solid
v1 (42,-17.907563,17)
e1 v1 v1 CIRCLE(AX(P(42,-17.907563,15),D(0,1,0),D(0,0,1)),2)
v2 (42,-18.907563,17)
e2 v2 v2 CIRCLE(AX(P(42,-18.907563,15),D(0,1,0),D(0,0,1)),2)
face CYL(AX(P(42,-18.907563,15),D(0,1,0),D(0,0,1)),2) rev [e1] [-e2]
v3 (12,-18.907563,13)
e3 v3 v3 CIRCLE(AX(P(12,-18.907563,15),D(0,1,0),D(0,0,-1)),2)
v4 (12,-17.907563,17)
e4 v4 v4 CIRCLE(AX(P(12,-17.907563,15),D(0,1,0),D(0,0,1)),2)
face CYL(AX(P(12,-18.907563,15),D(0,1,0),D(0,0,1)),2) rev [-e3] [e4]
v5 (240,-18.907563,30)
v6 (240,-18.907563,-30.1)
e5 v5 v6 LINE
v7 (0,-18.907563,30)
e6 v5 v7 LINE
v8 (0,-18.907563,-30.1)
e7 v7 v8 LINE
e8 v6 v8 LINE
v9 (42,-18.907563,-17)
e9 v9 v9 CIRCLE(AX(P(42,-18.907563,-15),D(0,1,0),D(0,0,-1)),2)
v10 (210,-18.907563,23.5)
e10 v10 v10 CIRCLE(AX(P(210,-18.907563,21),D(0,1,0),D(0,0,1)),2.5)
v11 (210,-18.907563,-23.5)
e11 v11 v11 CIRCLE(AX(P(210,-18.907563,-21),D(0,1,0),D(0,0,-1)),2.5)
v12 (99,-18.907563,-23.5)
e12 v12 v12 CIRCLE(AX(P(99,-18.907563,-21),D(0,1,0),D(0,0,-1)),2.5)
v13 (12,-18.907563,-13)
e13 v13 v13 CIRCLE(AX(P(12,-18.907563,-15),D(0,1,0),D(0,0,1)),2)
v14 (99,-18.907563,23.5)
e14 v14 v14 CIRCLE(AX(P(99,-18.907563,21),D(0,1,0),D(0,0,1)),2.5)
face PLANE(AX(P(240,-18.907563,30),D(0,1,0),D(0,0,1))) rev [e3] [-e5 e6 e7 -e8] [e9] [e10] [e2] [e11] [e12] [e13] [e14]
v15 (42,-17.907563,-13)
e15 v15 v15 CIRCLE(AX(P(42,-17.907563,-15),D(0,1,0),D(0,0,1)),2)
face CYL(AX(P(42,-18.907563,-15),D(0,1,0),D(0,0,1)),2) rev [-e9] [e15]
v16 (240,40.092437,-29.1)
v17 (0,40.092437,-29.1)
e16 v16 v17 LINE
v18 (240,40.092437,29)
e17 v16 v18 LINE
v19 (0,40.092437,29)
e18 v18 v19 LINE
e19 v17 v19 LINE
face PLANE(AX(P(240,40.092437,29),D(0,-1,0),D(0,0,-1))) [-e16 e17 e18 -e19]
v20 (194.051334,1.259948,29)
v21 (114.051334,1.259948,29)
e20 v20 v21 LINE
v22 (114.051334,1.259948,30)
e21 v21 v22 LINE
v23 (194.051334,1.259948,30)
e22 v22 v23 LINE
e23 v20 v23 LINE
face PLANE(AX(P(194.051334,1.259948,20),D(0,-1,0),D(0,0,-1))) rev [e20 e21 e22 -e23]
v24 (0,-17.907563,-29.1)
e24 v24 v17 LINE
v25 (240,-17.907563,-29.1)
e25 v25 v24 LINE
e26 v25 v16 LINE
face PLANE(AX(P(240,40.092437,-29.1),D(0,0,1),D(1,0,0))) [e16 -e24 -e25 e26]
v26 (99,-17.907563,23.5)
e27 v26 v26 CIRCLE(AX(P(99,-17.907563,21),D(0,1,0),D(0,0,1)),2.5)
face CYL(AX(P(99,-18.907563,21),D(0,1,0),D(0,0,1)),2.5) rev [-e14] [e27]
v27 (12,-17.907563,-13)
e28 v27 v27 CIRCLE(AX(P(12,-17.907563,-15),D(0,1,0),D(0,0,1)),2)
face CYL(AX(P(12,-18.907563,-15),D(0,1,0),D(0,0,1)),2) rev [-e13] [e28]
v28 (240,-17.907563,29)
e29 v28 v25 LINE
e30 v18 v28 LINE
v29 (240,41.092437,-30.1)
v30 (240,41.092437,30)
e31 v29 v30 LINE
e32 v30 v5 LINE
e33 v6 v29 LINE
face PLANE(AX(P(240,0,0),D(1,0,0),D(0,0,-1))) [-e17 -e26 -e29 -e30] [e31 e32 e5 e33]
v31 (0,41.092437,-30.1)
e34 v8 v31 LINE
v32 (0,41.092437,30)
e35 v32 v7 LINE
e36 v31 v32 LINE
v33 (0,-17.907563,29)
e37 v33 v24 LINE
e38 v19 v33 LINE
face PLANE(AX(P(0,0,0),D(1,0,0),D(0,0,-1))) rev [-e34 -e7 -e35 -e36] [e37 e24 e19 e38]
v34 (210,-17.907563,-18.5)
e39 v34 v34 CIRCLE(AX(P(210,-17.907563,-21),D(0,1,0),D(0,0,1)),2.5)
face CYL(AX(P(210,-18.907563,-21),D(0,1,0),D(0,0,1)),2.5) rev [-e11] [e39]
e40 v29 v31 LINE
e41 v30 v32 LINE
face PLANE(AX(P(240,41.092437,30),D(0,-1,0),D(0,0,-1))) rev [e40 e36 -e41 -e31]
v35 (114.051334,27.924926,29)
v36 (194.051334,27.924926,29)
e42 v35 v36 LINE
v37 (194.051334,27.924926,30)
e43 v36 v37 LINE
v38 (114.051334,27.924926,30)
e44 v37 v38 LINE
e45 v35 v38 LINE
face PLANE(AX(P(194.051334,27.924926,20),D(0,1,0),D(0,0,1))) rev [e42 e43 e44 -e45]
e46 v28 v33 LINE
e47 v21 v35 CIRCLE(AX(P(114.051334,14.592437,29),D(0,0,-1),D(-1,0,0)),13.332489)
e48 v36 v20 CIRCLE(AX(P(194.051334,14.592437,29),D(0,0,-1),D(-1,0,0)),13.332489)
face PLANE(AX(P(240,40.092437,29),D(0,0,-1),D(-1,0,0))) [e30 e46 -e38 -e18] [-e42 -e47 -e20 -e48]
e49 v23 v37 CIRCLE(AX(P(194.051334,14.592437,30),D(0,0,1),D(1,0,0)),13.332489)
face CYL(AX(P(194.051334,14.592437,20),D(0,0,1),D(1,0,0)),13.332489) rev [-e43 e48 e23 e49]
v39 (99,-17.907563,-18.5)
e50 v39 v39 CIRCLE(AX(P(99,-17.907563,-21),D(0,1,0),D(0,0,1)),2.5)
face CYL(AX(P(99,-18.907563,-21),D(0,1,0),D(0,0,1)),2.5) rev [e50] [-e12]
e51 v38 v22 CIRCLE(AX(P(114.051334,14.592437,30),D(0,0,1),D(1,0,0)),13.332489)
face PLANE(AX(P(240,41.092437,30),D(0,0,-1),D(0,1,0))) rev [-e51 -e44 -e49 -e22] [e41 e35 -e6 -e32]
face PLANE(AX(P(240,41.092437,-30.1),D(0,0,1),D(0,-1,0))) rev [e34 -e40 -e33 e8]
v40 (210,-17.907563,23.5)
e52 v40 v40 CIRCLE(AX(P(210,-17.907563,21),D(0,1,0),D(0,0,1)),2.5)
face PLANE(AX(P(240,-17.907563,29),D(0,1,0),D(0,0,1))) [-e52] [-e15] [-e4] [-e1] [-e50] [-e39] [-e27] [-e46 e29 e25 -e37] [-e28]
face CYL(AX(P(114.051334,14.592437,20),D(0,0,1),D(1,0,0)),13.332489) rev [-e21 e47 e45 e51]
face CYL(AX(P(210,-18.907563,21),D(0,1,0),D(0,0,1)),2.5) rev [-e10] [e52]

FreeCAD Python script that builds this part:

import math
import FreeCAD as App
import Part
import Sketcher
Q = App.Units.Quantity

doc = App.newDocument("Part")
body = doc.addObject("PartDesign::Body", "Body")

# Sketch on YZ plane
sketch1 = body.newObject("Sketcher::SketchObject", "Sketch")
sketch1.AttachmentSupport = (doc.getObject("YZ_Plane"), [""])
sketch1.MapMode = "FlatFace"
sketch1.addGeometry(Part.LineSegment(App.Vector(41, 30, 0), App.Vector(-19, 30, 0)), False)
sketch1.addGeometry(Part.LineSegment(App.Vector(-19, 30, 0), App.Vector(-19, -30, 0)), False)
sketch1.addGeometry(Part.LineSegment(App.Vector(-19, -30, 0), App.Vector(41, -30, 0)), False)
sketch1.addGeometry(Part.LineSegment(App.Vector(41, -30, 0), App.Vector(41, 30, 0)), False)
sketch1.addGeometry(Part.LineSegment(App.Vector(-18, -29, 0), App.Vector(-18, 29, 0)), False)
sketch1.addGeometry(Part.LineSegment(App.Vector(-18, 29, 0), App.Vector(40, 29, 0)), False)
sketch1.addGeometry(Part.LineSegment(App.Vector(40, 29, 0), App.Vector(40, -29, 0)), False)
sketch1.addGeometry(Part.LineSegment(App.Vector(40, -29, 0), App.Vector(-18, -29, 0)), False)
sketch1.addConstraint(Sketcher.Constraint("Coincident", 0, 2, 1, 1))
sketch1.addConstraint(Sketcher.Constraint("Coincident", 1, 2, 2, 1))
sketch1.addConstraint(Sketcher.Constraint("Coincident", 2, 2, 3, 1))
sketch1.addConstraint(Sketcher.Constraint("Coincident", 3, 2, 0, 1))
sketch1.addConstraint(Sketcher.Constraint("Coincident", 4, 2, 5, 1))
sketch1.addConstraint(Sketcher.Constraint("Coincident", 5, 2, 6, 1))
sketch1.addConstraint(Sketcher.Constraint("Coincident", 6, 2, 7, 1))
sketch1.addConstraint(Sketcher.Constraint("Coincident", 7, 2, 4, 1))
sketch1.addConstraint(Sketcher.Constraint("Horizontal", 0))
sketch1.addConstraint(Sketcher.Constraint("Vertical", 1))
sketch1.addConstraint(Sketcher.Constraint("Horizontal", 2))
sketch1.addConstraint(Sketcher.Constraint("Vertical", 3))
sketch1.addConstraint(Sketcher.Constraint("Vertical", 4))
sketch1.addConstraint(Sketcher.Constraint("Horizontal", 5))
sketch1.addConstraint(Sketcher.Constraint("Vertical", 6))
sketch1.addConstraint(Sketcher.Constraint("Horizontal", 7))
sketch1.addConstraint(Sketcher.Constraint("DistanceX", 0, 2, 0, 1, Q("60 mm")))
sketch1.addConstraint(Sketcher.Constraint("DistanceX", 5, 1, 5, 2, Q("58 mm")))
sketch1.addConstraint(Sketcher.Constraint("DistanceY", 1, 2, 1, 1, Q("60.1 mm")))
sketch1.addConstraint(Sketcher.Constraint("DistanceY", 4, 1, 4, 2, Q("58.1 mm")))
sketch1.addConstraint(Sketcher.Constraint("DistanceY", -1, 1, 0, 2, Q("30 mm")))
sketch1.addConstraint(Sketcher.Constraint("DistanceY", -1, 1, 4, 2, Q("29 mm")))
sketch1.addConstraint(Sketcher.Constraint("DistanceX", 0, 2, 4, 2, Q("1 mm")))
sketch1.addConstraint(Sketcher.Constraint("DistanceX", 0, 2, -1, 1, Q("18.907563 mm")))
pad1 = body.newObject("PartDesign::Pad", "Pad")
pad1.Profile = sketch1
pad1.Length = 240

# Sketch on XZ plane
sketch2 = body.newObject("Sketcher::SketchObject", "Sketch001")
sketch2.AttachmentSupport = (doc.getObject("XZ_Plane"), [""])
sketch2.MapMode = "FlatFace"
sketch2.addGeometry(Part.Circle(App.Vector(12, -15, 0), App.Vector(0, 0, 1), 2), False)
sketch2.addGeometry(Part.Circle(App.Vector(12, 15, 0), App.Vector(0, 0, 1), 2), False)
sketch2.addGeometry(Part.Circle(App.Vector(42, 15, 0), App.Vector(0, 0, 1), 2), False)
sketch2.addGeometry(Part.Circle(App.Vector(42, -15, 0), App.Vector(0, 0, 1), 2), False)
sketch2.addGeometry(Part.Circle(App.Vector(210, 21, 0), App.Vector(0, 0, 1), 2.5), False)
sketch2.addGeometry(Part.Circle(App.Vector(210, -21, 0), App.Vector(0, 0, 1), 2.5), False)
sketch2.addGeometry(Part.Circle(App.Vector(99, 21, 0), App.Vector(0, 0, 1), 2.5), False)
sketch2.addGeometry(Part.Circle(App.Vector(99, -21, 0), App.Vector(0, 0, 1), 2.5), False)
sketch2.addConstraint(Sketcher.Constraint("Equal", 0, 1))
sketch2.addConstraint(Sketcher.Constraint("Equal", 1, 2))
sketch2.addConstraint(Sketcher.Constraint("Equal", 2, 3))
sketch2.addConstraint(Sketcher.Constraint("Equal", 4, 5))
sketch2.addConstraint(Sketcher.Constraint("Equal", 5, 6))
sketch2.addConstraint(Sketcher.Constraint("Equal", 6, 7))
sketch2.addConstraint(Sketcher.Constraint("Symmetric", 0, 3, 1, 3, -1))
sketch2.addConstraint(Sketcher.Constraint("Symmetric", 2, 3, 3, 3, -1))
sketch2.addConstraint(Sketcher.Constraint("Symmetric", 4, 3, 5, 3, -1))
sketch2.addConstraint(Sketcher.Constraint("Symmetric", 6, 3, 7, 3, -1))
sketch2.addConstraint(Sketcher.Constraint("Horizontal", 1, 3, 2, 3))
sketch2.addConstraint(Sketcher.Constraint("Horizontal", 4, 3, 6, 3))
sketch2.addConstraint(Sketcher.Constraint("Diameter", 0, Q("4 mm")))
sketch2.addConstraint(Sketcher.Constraint("Diameter", 4, Q("5 mm")))
sketch2.addConstraint(Sketcher.Constraint("DistanceX", -1, 1, 0, 3, Q("12 mm")))
sketch2.addConstraint(Sketcher.Constraint("DistanceY", 0, 3, -1, 1, Q("15 mm")))
sketch2.addConstraint(Sketcher.Constraint("DistanceX", -1, 1, 2, 3, Q("42 mm")))
sketch2.addConstraint(Sketcher.Constraint("DistanceX", -1, 1, 4, 3, Q("210 mm")))
sketch2.addConstraint(Sketcher.Constraint("DistanceY", -1, 1, 4, 3, Q("21 mm")))
sketch2.addConstraint(Sketcher.Constraint("DistanceX", -1, 1, 6, 3, Q("99 mm")))
pocket1 = body.newObject("PartDesign::Pocket", "Pocket")
pocket1.Profile = sketch2
pocket1.Type = "ThroughAll"
pocket1.Reversed = True

# Sketch on XY plane
sketch3 = body.newObject("Sketcher::SketchObject", "Sketch002")
sketch3.AttachmentSupport = (doc.getObject("XY_Plane"), [""])
sketch3.MapMode = "FlatFace"
sketch3.AttachmentOffset = App.Placement(App.Vector(0, 0, 30), App.Rotation())
sketch3.addGeometry(Part.LineSegment(App.Vector(114, 1, 0), App.Vector(194, 1, 0)), False)
sketch3.addGeometry(Part.ArcOfCircle(Part.Circle(App.Vector(194, 15, 0), App.Vector(0, 0, 1), 13), math.radians(-90), math.radians(90)), False)
sketch3.addGeometry(Part.LineSegment(App.Vector(194, 28, 0), App.Vector(114, 28, 0)), False)
sketch3.addGeometry(Part.ArcOfCircle(Part.Circle(App.Vector(114, 15, 0), App.Vector(0, 0, 1), 13), math.radians(90), math.radians(270)), False)
sketch3.addConstraint(Sketcher.Constraint("Tangent", 0, 2, 1, 1))
sketch3.addConstraint(Sketcher.Constraint("Tangent", 1, 2, 2, 1))
sketch3.addConstraint(Sketcher.Constraint("Tangent", 2, 2, 3, 1))
sketch3.addConstraint(Sketcher.Constraint("Tangent", 3, 2, 0, 1))
sketch3.addConstraint(Sketcher.Constraint("Horizontal", 0))
sketch3.addConstraint(Sketcher.Constraint("Horizontal", 2))
sketch3.addConstraint(Sketcher.Constraint("DistanceX", 0, 1, 0, 2, Q("80 mm")))
sketch3.addConstraint(Sketcher.Constraint("Radius", 1, Q("13.332489 mm")))
sketch3.addConstraint(Sketcher.Constraint("DistanceX", -1, 1, 1, 3, Q("194.051334 mm")))
sketch3.addConstraint(Sketcher.Constraint("DistanceY", -1, 1, 1, 3, Q("14.592437 mm")))
pocket2 = body.newObject("PartDesign::Pocket", "Pocket001")
pocket2.Profile = sketch3
pocket2.Length = 10

doc.recompute()
